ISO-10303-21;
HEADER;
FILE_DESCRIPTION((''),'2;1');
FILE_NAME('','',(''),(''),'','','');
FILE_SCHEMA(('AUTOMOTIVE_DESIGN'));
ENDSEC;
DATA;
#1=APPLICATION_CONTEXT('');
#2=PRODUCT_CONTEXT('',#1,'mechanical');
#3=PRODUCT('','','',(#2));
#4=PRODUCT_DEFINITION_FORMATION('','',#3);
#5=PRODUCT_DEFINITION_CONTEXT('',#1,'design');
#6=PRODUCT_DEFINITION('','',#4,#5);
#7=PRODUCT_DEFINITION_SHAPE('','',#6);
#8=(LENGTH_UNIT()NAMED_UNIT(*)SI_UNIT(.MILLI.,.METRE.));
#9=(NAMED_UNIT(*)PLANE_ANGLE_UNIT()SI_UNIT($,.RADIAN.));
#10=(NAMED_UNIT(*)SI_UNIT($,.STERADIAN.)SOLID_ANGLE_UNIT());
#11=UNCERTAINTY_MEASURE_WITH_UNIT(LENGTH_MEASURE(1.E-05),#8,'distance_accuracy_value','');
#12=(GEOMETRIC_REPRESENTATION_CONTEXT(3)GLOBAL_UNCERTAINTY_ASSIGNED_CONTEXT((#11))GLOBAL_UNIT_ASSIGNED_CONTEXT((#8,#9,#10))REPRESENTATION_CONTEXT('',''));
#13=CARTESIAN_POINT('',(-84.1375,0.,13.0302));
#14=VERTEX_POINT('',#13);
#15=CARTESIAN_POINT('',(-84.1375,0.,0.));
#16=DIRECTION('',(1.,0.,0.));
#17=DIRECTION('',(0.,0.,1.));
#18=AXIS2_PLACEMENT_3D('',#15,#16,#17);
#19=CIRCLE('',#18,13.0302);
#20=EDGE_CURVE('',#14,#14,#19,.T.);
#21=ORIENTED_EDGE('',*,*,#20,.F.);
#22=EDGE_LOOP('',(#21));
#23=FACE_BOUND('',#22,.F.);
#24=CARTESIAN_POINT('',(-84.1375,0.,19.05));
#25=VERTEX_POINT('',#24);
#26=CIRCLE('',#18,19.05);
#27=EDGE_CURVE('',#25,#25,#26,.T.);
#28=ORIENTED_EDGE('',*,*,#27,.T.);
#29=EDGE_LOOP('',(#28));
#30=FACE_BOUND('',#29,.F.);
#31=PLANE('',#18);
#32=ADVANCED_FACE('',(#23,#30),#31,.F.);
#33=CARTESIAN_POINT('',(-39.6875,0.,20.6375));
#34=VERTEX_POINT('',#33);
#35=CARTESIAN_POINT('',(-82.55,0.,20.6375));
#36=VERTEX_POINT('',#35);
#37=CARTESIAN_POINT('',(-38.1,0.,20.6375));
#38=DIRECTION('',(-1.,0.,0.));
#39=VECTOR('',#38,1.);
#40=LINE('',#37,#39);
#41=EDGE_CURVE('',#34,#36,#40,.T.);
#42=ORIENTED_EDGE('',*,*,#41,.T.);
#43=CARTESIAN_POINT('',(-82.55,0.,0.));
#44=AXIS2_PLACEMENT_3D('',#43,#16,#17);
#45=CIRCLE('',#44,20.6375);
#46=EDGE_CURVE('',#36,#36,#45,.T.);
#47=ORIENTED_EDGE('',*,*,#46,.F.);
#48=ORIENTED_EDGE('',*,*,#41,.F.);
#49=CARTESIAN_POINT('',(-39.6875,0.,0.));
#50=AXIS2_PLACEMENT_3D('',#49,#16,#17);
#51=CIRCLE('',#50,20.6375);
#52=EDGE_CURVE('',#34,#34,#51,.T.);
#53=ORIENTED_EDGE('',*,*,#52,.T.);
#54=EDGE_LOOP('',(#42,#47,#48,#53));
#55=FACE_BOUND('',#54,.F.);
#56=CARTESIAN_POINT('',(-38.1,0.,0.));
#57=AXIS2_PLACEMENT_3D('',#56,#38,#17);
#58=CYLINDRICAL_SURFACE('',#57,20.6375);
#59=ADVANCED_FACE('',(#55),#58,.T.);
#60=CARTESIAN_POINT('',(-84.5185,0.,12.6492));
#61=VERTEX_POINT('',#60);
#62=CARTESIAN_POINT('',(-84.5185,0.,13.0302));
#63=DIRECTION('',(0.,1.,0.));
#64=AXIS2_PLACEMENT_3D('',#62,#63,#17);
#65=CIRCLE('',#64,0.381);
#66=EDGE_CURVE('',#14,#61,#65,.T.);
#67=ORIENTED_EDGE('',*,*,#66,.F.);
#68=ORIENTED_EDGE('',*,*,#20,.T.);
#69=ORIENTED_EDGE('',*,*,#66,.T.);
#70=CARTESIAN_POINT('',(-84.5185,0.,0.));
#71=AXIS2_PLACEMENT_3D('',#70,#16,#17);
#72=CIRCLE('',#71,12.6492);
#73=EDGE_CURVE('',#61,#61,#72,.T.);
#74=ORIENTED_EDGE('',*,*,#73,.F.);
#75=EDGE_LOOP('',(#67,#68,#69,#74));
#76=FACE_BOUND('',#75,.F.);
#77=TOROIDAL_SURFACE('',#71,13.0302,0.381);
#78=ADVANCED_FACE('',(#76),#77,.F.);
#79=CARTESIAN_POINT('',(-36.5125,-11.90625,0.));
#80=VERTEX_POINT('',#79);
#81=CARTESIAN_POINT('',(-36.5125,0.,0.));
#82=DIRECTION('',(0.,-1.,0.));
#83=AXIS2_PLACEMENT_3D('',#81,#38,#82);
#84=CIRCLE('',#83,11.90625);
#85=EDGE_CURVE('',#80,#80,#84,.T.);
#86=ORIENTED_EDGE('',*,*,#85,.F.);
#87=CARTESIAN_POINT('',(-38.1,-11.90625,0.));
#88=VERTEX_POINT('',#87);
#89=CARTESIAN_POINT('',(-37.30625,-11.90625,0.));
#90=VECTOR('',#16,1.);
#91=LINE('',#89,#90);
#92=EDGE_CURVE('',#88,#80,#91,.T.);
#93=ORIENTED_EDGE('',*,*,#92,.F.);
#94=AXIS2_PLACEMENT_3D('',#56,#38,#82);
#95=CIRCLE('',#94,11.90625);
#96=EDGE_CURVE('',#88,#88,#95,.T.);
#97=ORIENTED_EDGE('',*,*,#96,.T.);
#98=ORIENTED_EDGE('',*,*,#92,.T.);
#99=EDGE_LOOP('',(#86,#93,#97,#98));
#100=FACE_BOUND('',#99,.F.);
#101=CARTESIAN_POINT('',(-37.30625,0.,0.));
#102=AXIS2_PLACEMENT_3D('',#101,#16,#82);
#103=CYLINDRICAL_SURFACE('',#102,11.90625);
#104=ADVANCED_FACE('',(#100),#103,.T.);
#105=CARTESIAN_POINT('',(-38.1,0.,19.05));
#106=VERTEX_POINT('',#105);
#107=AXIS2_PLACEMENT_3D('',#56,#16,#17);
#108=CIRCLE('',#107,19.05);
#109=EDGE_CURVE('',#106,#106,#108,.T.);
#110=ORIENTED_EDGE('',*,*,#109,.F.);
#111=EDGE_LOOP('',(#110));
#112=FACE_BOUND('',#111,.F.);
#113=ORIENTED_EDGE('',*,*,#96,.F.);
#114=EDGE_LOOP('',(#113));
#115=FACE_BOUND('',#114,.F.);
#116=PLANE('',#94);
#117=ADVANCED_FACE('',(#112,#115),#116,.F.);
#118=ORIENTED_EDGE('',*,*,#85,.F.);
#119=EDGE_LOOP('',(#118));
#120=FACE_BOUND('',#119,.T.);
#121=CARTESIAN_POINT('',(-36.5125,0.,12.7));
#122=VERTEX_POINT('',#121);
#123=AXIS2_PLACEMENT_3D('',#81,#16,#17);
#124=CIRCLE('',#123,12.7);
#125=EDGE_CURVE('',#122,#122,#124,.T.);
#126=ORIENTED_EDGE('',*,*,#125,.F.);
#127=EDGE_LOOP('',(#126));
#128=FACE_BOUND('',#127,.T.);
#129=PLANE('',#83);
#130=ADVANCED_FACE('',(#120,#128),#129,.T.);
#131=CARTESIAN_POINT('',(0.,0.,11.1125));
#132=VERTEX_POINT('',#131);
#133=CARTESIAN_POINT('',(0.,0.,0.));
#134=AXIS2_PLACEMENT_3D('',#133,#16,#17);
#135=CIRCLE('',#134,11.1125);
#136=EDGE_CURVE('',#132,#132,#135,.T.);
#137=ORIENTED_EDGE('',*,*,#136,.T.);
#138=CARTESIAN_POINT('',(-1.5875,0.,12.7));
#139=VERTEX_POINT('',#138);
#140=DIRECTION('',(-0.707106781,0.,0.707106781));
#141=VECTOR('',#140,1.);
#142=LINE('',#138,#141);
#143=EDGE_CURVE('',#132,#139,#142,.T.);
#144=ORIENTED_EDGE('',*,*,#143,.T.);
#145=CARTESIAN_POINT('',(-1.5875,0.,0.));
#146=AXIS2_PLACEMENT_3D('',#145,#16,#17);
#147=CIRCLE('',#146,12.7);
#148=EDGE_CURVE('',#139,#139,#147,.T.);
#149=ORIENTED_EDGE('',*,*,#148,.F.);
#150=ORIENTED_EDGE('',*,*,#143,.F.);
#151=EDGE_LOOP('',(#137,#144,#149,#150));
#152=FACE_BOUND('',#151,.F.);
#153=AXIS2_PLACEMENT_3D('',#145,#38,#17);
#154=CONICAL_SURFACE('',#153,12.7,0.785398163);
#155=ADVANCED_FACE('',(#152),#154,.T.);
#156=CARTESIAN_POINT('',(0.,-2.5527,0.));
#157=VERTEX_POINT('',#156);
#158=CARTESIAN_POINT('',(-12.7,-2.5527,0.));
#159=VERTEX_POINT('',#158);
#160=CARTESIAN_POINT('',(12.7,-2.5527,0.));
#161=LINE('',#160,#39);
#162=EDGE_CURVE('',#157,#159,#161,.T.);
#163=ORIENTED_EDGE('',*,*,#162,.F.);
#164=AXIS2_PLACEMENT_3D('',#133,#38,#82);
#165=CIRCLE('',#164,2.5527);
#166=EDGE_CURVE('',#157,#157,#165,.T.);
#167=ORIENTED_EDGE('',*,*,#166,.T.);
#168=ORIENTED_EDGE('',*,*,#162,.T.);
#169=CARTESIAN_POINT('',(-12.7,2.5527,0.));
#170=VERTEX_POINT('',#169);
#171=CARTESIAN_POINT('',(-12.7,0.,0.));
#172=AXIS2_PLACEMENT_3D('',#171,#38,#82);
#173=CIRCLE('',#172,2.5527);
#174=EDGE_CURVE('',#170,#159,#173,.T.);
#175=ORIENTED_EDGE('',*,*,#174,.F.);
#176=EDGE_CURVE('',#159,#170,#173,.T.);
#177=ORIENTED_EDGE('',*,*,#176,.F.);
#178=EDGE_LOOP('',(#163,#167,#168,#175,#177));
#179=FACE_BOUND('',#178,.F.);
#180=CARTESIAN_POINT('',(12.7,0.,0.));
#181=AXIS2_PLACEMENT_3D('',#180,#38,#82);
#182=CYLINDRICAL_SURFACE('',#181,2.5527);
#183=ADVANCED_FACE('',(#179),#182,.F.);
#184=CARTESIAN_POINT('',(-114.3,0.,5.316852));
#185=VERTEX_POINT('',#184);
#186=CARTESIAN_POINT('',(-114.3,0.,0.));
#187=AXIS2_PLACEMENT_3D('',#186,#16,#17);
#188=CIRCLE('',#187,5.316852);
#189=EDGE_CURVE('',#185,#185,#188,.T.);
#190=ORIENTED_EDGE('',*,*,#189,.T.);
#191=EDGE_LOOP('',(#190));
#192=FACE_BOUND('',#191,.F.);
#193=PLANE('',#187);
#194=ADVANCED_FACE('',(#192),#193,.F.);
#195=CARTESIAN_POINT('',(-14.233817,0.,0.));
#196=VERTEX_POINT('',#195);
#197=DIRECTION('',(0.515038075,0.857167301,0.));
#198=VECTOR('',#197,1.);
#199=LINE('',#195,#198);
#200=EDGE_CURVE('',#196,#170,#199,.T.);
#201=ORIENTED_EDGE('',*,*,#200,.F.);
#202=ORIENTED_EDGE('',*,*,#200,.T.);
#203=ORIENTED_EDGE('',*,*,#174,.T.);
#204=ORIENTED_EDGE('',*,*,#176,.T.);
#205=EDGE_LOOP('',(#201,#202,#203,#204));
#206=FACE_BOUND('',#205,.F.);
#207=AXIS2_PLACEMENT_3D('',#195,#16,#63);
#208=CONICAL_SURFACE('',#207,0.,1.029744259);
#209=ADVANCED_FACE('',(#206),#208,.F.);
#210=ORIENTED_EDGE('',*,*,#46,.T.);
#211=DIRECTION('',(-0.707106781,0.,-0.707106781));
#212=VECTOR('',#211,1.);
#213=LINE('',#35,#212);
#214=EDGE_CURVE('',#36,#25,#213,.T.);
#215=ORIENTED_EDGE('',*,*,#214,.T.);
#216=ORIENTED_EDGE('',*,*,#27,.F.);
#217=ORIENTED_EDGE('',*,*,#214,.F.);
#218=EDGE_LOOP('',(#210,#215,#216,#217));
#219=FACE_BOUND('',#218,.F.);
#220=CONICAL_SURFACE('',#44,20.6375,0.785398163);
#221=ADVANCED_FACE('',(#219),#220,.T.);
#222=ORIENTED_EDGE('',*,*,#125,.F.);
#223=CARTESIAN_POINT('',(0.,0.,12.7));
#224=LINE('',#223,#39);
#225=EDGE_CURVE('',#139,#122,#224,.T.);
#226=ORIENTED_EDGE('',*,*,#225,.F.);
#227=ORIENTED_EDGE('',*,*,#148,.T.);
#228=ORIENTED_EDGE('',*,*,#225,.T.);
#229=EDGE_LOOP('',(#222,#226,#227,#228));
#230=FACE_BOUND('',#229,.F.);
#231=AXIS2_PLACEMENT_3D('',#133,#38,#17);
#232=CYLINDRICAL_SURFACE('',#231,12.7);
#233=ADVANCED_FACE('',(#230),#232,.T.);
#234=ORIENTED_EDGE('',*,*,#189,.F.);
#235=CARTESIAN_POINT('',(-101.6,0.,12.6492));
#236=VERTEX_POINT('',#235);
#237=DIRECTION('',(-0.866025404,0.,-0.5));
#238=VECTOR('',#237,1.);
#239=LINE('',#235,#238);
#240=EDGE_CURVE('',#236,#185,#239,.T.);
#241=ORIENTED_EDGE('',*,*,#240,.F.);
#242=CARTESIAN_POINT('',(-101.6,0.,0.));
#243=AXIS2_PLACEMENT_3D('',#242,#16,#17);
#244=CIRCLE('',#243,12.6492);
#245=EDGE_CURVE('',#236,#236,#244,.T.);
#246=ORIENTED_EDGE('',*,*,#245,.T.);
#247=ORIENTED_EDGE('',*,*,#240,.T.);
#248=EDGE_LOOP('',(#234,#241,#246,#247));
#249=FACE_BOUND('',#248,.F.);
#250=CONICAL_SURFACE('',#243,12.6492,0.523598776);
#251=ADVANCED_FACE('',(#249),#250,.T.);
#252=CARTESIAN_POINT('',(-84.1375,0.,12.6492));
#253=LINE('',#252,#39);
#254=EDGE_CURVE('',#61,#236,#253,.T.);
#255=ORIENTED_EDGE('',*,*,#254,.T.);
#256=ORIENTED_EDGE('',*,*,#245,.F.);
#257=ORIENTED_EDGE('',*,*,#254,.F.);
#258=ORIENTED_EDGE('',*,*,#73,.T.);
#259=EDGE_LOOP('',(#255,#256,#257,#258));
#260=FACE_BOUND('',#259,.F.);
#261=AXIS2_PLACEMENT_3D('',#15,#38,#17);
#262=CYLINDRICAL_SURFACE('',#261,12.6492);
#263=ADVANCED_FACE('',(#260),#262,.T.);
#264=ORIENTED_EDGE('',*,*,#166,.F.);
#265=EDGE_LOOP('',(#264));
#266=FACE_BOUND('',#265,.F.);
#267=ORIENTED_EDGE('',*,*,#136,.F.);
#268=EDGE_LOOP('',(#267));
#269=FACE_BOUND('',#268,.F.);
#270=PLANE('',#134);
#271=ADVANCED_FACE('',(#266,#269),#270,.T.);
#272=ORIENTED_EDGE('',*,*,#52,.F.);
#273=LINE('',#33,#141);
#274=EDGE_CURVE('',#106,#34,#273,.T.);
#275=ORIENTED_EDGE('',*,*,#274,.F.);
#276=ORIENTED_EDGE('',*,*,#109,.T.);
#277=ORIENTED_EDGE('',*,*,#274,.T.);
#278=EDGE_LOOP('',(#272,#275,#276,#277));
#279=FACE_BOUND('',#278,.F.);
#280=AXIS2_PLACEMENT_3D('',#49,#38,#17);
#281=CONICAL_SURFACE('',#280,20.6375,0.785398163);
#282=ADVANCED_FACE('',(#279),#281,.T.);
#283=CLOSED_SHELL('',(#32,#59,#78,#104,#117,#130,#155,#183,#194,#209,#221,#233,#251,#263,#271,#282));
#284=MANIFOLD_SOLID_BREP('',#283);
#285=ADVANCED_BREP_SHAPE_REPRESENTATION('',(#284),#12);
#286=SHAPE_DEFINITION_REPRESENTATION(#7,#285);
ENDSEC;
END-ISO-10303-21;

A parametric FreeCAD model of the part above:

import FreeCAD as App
import Part
import Sketcher
from FreeCAD import Vector
Q = App.Units.Quantity


def edges_at(feature, points):
    """Names of the edges that pass closest to the given points."""
    edges = feature.Shape.Edges
    near = lambda p: min(range(len(edges)), key=lambda i: edges[i].distToShape(Part.Vertex(*p))[0])
    return sorted({f"Edge{near(p) + 1}" for p in points})


def add_polygon(sketch, points):
    """Adds a closed chain of lines whose ends are joined by coincident constraints."""
    first, n = sketch.GeometryCount, len(points)
    for a, b in zip(points, points[1:] + points[:1]):
        sketch.addGeometry(Part.LineSegment(App.Vector(*a, 0), App.Vector(*b, 0)), False)
    for i in range(n):
        sketch.addConstraint(Sketcher.Constraint("Coincident", first + i, 2, first + (i + 1) % n, 1))

doc = App.newDocument("Part")
params = doc.addObject("Spreadsheet::Sheet", "Params")
for row, (alias, value) in enumerate([
    ("sketch1_width", "4.5 in"),
    ("sketch1_width2", "1.5 in"),
    ("sketch1_height", "0.5 in"),
    ("sketch1_width3", "1.8125 in"),
    ("sketch1_height2", "0.3125 in"),
    ("revolution_angle", "360 deg"),
    ("sketch2_width", "0.0625 in"),
    ("sketch2_height", "0.03125 in"),
    ("groove_angle", "360 deg"),
    ("chamfer_size", "0.0625 in"),
    ("fillet_radius", "0.015 in"),
    ("sketch3_diameter", "0.201 in"),
    ("hole_diameter", "0.201 in"),
    ("hole_depth", "0.5 in"),
], start=1):
    params.set(f"A{row}", alias)
    params.set(f"B{row}", "=" + value)
    params.setAlias(f"B{row}", alias)

body = doc.addObject("PartDesign::Body", "Body")

sketch1 = body.newObject("Sketcher::SketchObject", "Sketch")
sketch1.AttachmentSupport = (doc.getObject("XZ_Plane"), [""])
sketch1.MapMode = "FlatFace"
add_polygon(sketch1, [(-114, 0), (0, 0), (0, 13), (-38, 13), (-38, 21), (-84, 21), (-84, 13), (-102, 13), (-114, 5)])
sketch1.addConstraint(Sketcher.Constraint("Horizontal", 0))
sketch1.addConstraint(Sketcher.Constraint("Vertical", 1))
sketch1.addConstraint(Sketcher.Constraint("Horizontal", 2))
sketch1.addConstraint(Sketcher.Constraint("Vertical", 3))
sketch1.addConstraint(Sketcher.Constraint("Horizontal", 4))
sketch1.addConstraint(Sketcher.Constraint("Vertical", 5))
sketch1.addConstraint(Sketcher.Constraint("Horizontal", 6))
sketch1.addConstraint(Sketcher.Constraint("Vertical", 8))
sketch1.addConstraint(Sketcher.Constraint("Coincident", 0, 2, -1, 1))
sketch1.addConstraint(Sketcher.Constraint("DistanceX", 0, 1, 0, 2, Q("4.5 in")))
sketch1.addConstraint(Sketcher.Constraint("DistanceX", 2, 2, 2, 1, Q("1.5 in")))
sketch1.addConstraint(Sketcher.Constraint("DistanceY", 1, 1, 1, 2, Q("0.5 in")))
sketch1.addConstraint(Sketcher.Constraint("DistanceX", 6, 2, -1, 1, Q("4 in")))
sketch1.addConstraint(Sketcher.Constraint("Angle", 7, Q("-150 deg")))
sketch1.addConstraint(Sketcher.Constraint("DistanceX", 4, 2, 4, 1, Q("1.8125 in")))
sketch1.addConstraint(Sketcher.Constraint("DistanceY", 3, 1, 3, 2, Q("0.3125 in")))
sketch1.addConstraint(Sketcher.Constraint("DistanceY", 5, 2, 5, 1, Q("0.3145 in")))
sketch1.setExpression("Constraints[18]", "Params.sketch1_width")
sketch1.setExpression("Constraints[19]", "Params.sketch1_width2")
sketch1.setExpression("Constraints[20]", "Params.sketch1_height")
sketch1.setExpression("Constraints[23]", "Params.sketch1_width3")
sketch1.setExpression("Constraints[24]", "Params.sketch1_height2")
revolution = body.newObject("PartDesign::Revolution", "Revolution")
revolution.Profile = sketch1
revolution.ReferenceAxis = (sketch1, ["H_Axis"])
revolution.setExpression("Angle", "Params.revolution_angle")

sketch2 = body.newObject("Sketcher::SketchObject", "Sketch001")
sketch2.AttachmentSupport = (doc.getObject("XY_Plane"), [""])
sketch2.MapMode = "FlatFace"
add_polygon(sketch2, [(-38.1, -11.9), (-38.1, -12.7), (-36.5, -12.7), (-36.5, -11.9)])
sketch2.addConstraint(Sketcher.Constraint("Vertical", 0))
sketch2.addConstraint(Sketcher.Constraint("Horizontal", 1))
sketch2.addConstraint(Sketcher.Constraint("Vertical", 2))
sketch2.addConstraint(Sketcher.Constraint("Horizontal", 3))
sketch2.addConstraint(Sketcher.Constraint("DistanceX", 0, 2, -1, 1, Q("1.5 in")))
sketch2.addConstraint(Sketcher.Constraint("DistanceY", 0, 2, -1, 1, Q("0.5 in")))
sketch2.addConstraint(Sketcher.Constraint("DistanceX", 1, 1, 1, 2, Q("0.0625 in")))
sketch2.addConstraint(Sketcher.Constraint("DistanceY", 0, 2, 0, 1, Q("0.03125 in")))
sketch2.setExpression("Constraints[10]", "Params.sketch2_width")
sketch2.setExpression("Constraints[11]", "Params.sketch2_height")
groove = body.newObject("PartDesign::Groove", "Groove")
groove.Profile = sketch2
groove.ReferenceAxis = (sketch2, ["H_Axis"])
groove.setExpression("Angle", "Params.groove_angle")
doc.recompute()

chamfer = body.newObject("PartDesign::Chamfer", "Chamfer")
chamfer.Base = (groove, edges_at(groove, [(0, 0, -12.7), (-38.1, 0, -20.637), (-84.138, 0, -20.637)]))
chamfer.setExpression("Size", "Params.chamfer_size")
doc.recompute()

fillet = body.newObject("PartDesign::Fillet", "Fillet")
fillet.Base = (chamfer, edges_at(chamfer, [(-84.138, 0, -12.649)]))
fillet.setExpression("Radius", "Params.fillet_radius")

sketch3 = body.newObject("Sketcher::SketchObject", "Sketch002")
sketch3.AttachmentSupport = (doc.getObject("YZ_Plane"), [""])
sketch3.MapMode = "FlatFace"
sketch3.addGeometry(Part.Circle(Vector(0, 0, 0), Vector(0, 0, 1), 2.6), False)
sketch3.addConstraint(Sketcher.Constraint("Coincident", 0, 3, -1, 1))
sketch3.addConstraint(Sketcher.Constraint("Diameter", 0, Q("0.201 in")))
sketch3.setExpression("Constraints[1]", "Params.sketch3_diameter")
doc.recompute()
hole = body.newObject("PartDesign::Hole", "Hole")
hole.Profile = sketch3
hole.ThreadType = "None"
hole.setExpression("Diameter", "Params.hole_diameter")
hole.DepthType = "Dimension"
hole.setExpression("Depth", "Params.hole_depth")
hole.DrillPoint = "Angled"
hole.DrillPointAngle = 118

doc.recompute()
